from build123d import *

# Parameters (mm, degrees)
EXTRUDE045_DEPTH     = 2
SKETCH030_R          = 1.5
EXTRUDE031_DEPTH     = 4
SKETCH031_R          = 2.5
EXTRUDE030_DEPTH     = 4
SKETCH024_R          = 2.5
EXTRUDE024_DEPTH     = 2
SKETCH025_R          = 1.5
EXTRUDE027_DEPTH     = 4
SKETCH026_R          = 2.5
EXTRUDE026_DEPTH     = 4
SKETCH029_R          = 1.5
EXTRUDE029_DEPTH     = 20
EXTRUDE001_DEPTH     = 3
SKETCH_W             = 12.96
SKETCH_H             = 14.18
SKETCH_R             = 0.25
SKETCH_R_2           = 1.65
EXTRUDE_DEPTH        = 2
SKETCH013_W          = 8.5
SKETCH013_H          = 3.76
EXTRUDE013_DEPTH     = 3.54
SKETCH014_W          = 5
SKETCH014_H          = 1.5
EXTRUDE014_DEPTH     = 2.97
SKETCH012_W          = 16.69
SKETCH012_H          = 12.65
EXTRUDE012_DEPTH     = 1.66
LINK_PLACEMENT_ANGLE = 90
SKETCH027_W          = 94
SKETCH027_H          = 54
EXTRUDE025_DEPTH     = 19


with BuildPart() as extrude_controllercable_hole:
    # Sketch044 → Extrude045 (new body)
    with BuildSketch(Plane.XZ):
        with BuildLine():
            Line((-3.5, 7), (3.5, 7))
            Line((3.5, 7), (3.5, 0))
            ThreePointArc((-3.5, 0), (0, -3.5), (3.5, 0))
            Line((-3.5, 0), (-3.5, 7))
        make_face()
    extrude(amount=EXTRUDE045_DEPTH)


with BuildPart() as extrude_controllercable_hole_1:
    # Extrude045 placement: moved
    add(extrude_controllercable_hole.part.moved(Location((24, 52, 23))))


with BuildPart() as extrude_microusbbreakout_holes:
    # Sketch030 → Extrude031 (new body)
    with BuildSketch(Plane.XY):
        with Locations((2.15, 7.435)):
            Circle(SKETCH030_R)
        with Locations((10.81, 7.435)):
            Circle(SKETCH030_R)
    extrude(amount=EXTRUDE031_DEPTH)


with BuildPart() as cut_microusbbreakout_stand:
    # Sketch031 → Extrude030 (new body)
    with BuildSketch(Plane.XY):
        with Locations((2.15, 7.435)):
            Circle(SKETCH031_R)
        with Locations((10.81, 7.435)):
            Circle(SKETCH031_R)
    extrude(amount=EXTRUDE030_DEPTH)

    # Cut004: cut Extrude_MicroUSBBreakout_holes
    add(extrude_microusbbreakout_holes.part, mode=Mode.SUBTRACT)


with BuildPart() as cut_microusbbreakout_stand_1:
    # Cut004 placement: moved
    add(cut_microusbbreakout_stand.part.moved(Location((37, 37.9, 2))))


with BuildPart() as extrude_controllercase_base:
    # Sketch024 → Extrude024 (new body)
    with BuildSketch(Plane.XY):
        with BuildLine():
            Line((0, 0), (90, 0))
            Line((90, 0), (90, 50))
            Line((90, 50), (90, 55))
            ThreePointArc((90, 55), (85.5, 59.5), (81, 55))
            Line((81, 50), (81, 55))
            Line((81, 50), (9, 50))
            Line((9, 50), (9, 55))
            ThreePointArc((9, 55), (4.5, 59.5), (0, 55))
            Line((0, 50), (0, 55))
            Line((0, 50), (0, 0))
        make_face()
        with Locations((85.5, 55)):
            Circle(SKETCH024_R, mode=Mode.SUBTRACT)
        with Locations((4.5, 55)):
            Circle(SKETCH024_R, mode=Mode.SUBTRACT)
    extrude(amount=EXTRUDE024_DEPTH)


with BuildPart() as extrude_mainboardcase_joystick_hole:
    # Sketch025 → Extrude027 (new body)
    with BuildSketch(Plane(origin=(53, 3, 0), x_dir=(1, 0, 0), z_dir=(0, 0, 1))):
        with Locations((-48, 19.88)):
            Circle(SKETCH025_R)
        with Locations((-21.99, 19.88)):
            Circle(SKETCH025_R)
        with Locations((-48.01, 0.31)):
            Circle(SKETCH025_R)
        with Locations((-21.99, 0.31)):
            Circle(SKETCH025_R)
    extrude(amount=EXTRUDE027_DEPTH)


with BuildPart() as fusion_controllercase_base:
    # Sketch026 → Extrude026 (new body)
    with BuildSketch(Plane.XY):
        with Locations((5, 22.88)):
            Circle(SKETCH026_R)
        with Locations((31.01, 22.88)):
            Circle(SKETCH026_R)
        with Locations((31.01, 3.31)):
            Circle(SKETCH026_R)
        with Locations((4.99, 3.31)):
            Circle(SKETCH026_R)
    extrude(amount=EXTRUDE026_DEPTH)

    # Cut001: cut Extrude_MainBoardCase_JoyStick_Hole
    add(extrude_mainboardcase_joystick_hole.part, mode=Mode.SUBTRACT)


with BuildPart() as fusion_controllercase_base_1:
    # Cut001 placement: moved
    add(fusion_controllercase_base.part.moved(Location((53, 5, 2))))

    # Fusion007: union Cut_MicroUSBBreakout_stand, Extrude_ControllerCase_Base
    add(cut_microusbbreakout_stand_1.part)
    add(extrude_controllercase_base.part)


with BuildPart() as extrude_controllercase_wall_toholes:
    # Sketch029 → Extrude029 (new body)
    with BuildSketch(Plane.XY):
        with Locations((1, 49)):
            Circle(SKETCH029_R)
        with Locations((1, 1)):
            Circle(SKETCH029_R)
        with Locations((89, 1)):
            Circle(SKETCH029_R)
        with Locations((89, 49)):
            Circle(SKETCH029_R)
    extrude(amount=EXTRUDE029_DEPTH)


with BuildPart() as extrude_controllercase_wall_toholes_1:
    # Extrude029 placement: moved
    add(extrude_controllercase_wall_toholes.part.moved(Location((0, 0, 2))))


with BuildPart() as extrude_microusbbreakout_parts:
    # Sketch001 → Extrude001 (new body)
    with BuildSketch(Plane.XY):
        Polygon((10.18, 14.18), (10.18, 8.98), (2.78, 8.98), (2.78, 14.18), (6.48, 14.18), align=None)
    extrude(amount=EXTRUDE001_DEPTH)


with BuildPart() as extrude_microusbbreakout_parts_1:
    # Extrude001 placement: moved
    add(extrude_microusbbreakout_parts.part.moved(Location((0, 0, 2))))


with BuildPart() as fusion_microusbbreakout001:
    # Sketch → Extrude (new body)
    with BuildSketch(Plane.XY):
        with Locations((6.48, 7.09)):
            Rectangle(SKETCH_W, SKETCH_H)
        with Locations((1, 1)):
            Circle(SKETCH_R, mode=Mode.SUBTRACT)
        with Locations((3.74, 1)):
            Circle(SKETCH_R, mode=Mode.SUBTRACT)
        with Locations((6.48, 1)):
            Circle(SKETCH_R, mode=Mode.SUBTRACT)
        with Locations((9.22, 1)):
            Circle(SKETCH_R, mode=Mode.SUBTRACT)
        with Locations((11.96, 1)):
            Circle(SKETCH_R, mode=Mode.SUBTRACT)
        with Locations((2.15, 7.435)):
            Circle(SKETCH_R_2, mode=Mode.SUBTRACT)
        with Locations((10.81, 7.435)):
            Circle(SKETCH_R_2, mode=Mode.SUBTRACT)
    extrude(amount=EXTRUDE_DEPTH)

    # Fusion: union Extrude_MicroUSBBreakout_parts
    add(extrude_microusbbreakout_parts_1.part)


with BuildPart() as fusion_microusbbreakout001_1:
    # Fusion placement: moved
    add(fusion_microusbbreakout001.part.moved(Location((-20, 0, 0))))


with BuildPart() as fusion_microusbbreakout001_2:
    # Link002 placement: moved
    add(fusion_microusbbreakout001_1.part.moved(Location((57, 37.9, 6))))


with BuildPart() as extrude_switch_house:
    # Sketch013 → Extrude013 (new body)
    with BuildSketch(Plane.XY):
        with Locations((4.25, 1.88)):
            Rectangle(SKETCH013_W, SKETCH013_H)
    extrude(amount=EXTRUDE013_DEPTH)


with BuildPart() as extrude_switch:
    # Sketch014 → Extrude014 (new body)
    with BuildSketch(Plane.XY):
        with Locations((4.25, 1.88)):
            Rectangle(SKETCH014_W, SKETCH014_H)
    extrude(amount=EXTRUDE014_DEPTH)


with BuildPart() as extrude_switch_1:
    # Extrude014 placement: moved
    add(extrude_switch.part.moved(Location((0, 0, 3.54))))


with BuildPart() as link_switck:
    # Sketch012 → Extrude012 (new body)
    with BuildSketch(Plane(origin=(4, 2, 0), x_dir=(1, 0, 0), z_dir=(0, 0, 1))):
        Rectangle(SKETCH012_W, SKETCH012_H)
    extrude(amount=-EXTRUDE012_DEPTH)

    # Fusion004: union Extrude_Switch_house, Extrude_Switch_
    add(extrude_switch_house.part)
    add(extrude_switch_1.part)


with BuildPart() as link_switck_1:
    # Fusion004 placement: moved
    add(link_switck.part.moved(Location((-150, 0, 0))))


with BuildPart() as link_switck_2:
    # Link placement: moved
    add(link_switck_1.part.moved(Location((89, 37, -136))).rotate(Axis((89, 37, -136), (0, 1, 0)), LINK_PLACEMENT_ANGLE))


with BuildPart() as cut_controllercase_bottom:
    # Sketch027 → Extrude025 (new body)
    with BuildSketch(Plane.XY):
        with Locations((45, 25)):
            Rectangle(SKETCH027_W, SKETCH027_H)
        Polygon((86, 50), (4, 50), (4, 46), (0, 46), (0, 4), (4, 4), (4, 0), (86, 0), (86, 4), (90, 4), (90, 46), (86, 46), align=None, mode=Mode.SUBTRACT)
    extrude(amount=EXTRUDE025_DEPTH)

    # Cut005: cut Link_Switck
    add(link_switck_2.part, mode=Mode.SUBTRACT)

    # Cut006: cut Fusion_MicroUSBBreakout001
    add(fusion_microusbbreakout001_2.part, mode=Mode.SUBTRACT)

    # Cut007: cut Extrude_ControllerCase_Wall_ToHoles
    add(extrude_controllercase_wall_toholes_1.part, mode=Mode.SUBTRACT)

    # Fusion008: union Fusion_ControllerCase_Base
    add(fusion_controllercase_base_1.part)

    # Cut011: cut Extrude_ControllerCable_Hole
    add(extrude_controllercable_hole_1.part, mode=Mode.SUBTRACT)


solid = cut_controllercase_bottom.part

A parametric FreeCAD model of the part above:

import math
import FreeCAD as App
import Part
import Sketcher

V = App.Vector


def add_polygon(sketch, points):
    """Adds a closed chain of lines whose ends are joined by coincident constraints."""
    first, n = sketch.GeometryCount, len(points)
    for a, b in zip(points, points[1:] + points[:1]):
        sketch.addGeometry(Part.LineSegment(App.Vector(*a, 0), App.Vector(*b, 0)), False)
    for i in range(n):
        sketch.addConstraint(Sketcher.Constraint("Coincident", first + i, 2, first + (i + 1) % n, 1))

doc = App.newDocument("Part")
params = doc.addObject("Spreadsheet::Sheet", "Params")
for row, (alias, value) in enumerate([
    ("sketch1_radius", "3.5 mm"),
    ("pad1_length", "2 mm"),
    ("sketch2_diameter", "3 mm"),
    ("pad2_length", "4 mm"),
    ("sketch3_diameter", "5 mm"),
    ("pad3_length", "4 mm"),
    ("sketch4_diameter", "5 mm"),
    ("sketch4_radius", "4.5 mm"),
    ("sketch4_width", "90 mm"),
    ("sketch4_height", "55 mm"),
    ("sketch4_height2", "5 mm"),
    ("pad4_length", "2 mm"),
    ("sketch5_diameter", "3 mm"),
    ("pad5_length", "4 mm"),
    ("sketch6_diameter", "5 mm"),
    ("pad6_length", "4 mm"),
    ("sketch7_diameter", "3 mm"),
    ("pad7_length", "20 mm"),
    ("sketch8_width", "7.4 mm"),
    ("sketch8_height", "5.2 mm"),
    ("pad8_length", "3 mm"),
    ("sketch9_diameter", "0.5 mm"),
    ("sketch9_diameter2", "3.3 mm"),
    ("sketch9_width", "12.96 mm"),
    ("sketch9_height", "14.18 mm"),
    ("pad9_length", "2 mm"),
    ("sketch10_width", "8.5 mm"),
    ("sketch10_height", "3.76 mm"),
    ("pad10_length", "3.54 mm"),
    ("sketch11_width", "5 mm"),
    ("sketch11_height", "1.5 mm"),
    ("pad11_length", "2.97 mm"),
    ("sketch12_width", "16.69 mm"),
    ("sketch12_height", "12.65 mm"),
    ("pad12_length", "1.66 mm"),
    ("sketch13_width", "94 mm"),
    ("sketch13_width2", "82 mm"),
    ("sketch13_width3", "4 mm"),
    ("sketch13_height", "54 mm"),
    ("sketch13_height2", "42 mm"),
    ("pad13_length", "19 mm"),
], start=1):
    params.set(f"A{row}", alias)
    params.set(f"B{row}", "=" + value)
    params.setAlias(f"B{row}", alias)

body = doc.addObject("PartDesign::Body", "Body")

sketch1 = doc.addObject("Sketcher::SketchObject", "Sketch")
body.addObject(sketch1)
sketch1.AttachmentSupport = (doc.XZ_Plane, [""])
sketch1.MapMode = "FlatFace"
sketch1.addGeometry([
    Part.LineSegment(V(3.5, 7, 0), V(-3.5, 7, 0)),
    Part.LineSegment(V(-3.5, 7, 0), V(-3.5, 0, 0)),
    Part.ArcOfCircle(Part.Circle(V(0, 0, 0), V(0, 0, 1), 3.5), math.radians(180), math.radians(360)),
    Part.LineSegment(V(3.5, 0, 0), V(3.5, 7, 0)),
], False)
sketch1.addConstraint([
    Sketcher.Constraint("Coincident", 0, 2, 1, 1),
    Sketcher.Constraint("Tangent", 1, 2, 2, 1),
    Sketcher.Constraint("Tangent", 2, 2, 3, 1),
    Sketcher.Constraint("Coincident", 3, 2, 0, 1),
    Sketcher.Constraint("Horizontal", 0),
    Sketcher.Constraint("Vertical", 1),
    Sketcher.Constraint("Vertical", 3),
    Sketcher.Constraint("Coincident", 2, 3, -1, 1),
    Sketcher.Constraint("Equal", 0, 1),
    Sketcher.Constraint("Radius", 2, 3.5),
])
sketch1.setExpression("Constraints[9]", "Params.sketch1_radius")
pad1 = doc.addObject("PartDesign::Pad", "Pad")
body.addObject(pad1)
pad1.Profile = sketch1
pad1.setExpression("Length", "Params.pad1_length")
body2 = doc.addObject("PartDesign::Body", "Body001")
doc.recompute()

body.Placement = App.Placement(V(24, 52, 23), App.Rotation(V(0, 0, 1), 0))
boolean = doc.addObject("PartDesign::Boolean", "Boolean")
body2.addObject(boolean)
boolean.Type = "Fuse"
boolean.addObjects([body])
body3 = doc.addObject("PartDesign::Body", "Body002")
body3.AllowCompound = True

sketch2 = doc.addObject("Sketcher::SketchObject", "Sketch001")
body3.addObject(sketch2)
sketch2.AttachmentSupport = (doc.getObject("XY_Plane002"), [""])
sketch2.MapMode = "FlatFace"
sketch2.addGeometry([
    Part.Circle(V(2.1, 7.4, 0), V(0, 0, 1), 1.5),
    Part.Circle(V(10.8, 7.4, 0), V(0, 0, 1), 1.5),
], False)
sketch2.addConstraint([
    Sketcher.Constraint("Equal", 0, 1),
    Sketcher.Constraint("Horizontal", 0, 3, 1, 3),
    Sketcher.Constraint("Diameter", 0, 3.0),
    Sketcher.Constraint("DistanceX", -1, 1, 0, 3, 2.15),
    Sketcher.Constraint("DistanceX", -1, 1, 1, 3, 10.81),
    Sketcher.Constraint("DistanceY", -1, 1, 0, 3, 7.435),
])
sketch2.setExpression("Constraints[2]", "Params.sketch2_diameter")
pad2 = doc.addObject("PartDesign::Pad", "Pad001")
body3.addObject(pad2)
pad2.Profile = sketch2
pad2.setExpression("Length", "Params.pad2_length")
body4 = doc.addObject("PartDesign::Body", "Body003")
body4.AllowCompound = True

sketch3 = doc.addObject("Sketcher::SketchObject", "Sketch002")
body4.addObject(sketch3)
sketch3.AttachmentSupport = (doc.getObject("XY_Plane003"), [""])
sketch3.MapMode = "FlatFace"
sketch3.addGeometry([
    Part.Circle(V(2.1, 7.4, 0), V(0, 0, 1), 2.5),
    Part.Circle(V(10.8, 7.4, 0), V(0, 0, 1), 2.5),
], False)
sketch3.addConstraint([
    Sketcher.Constraint("Equal", 0, 1),
    Sketcher.Constraint("Horizontal", 0, 3, 1, 3),
    Sketcher.Constraint("Diameter", 0, 5.0),
    Sketcher.Constraint("DistanceX", -1, 1, 0, 3, 2.15),
    Sketcher.Constraint("DistanceX", -1, 1, 1, 3, 10.81),
    Sketcher.Constraint("DistanceY", -1, 1, 0, 3, 7.435),
])
sketch3.setExpression("Constraints[2]", "Params.sketch3_diameter")
pad3 = doc.addObject("PartDesign::Pad", "Pad002")
body4.addObject(pad3)
pad3.Profile = sketch3
pad3.setExpression("Length", "Params.pad3_length")
doc.recompute()

boolean2 = doc.addObject("PartDesign::Boolean", "Boolean001")
body4.addObject(boolean2)
boolean2.Type = "Cut"
boolean2.addObjects([body3])
body5 = doc.addObject("PartDesign::Body", "Body004")
body5.AllowCompound = True
doc.recompute()

body4.Placement = App.Placement(V(37, 37.9, 2), App.Rotation(V(0, 0, 1), 0))
boolean3 = doc.addObject("PartDesign::Boolean", "Boolean002")
body5.addObject(boolean3)
boolean3.Type = "Fuse"
boolean3.addObjects([body4])
body6 = doc.addObject("PartDesign::Body", "Body005")

sketch4 = doc.addObject("Sketcher::SketchObject", "Sketch003")
body6.addObject(sketch4)
sketch4.AttachmentSupport = (doc.getObject("XY_Plane005"), [""])
sketch4.MapMode = "FlatFace"
sketch4.addGeometry([
    Part.LineSegment(V(0, 0, 0), V(90, 0, 0)),
    Part.LineSegment(V(90, 0, 0), V(90, 55, 0)),
    Part.ArcOfCircle(Part.Circle(V(85.5, 55, 0), V(0, 0, 1), 4.5), math.radians(0), math.radians(180)),
    Part.LineSegment(V(81, 55, 0), V(81, 50, 0)),
    Part.LineSegment(V(81, 50, 0), V(9, 50, 0)),
    Part.LineSegment(V(9, 50, 0), V(9, 55, 0)),
    Part.ArcOfCircle(Part.Circle(V(4.5, 55, 0), V(0, 0, 1), 4.5), math.radians(0), math.radians(180)),
    Part.LineSegment(V(0, 55, 0), V(0, 0, 0)),
    Part.Circle(V(4.5, 55, 0), V(0, 0, 1), 2.5),
    Part.Circle(V(85.5, 55, 0), V(0, 0, 1), 2.5),
], False)
sketch4.addConstraint([
    Sketcher.Constraint("Coincident", 0, 2, 1, 1),
    Sketcher.Constraint("Tangent", 1, 2, 2, 1),
    Sketcher.Constraint("Tangent", 2, 2, 3, 1),
    Sketcher.Constraint("Coincident", 3, 2, 4, 1),
    Sketcher.Constraint("Coincident", 4, 2, 5, 1),
    Sketcher.Constraint("Tangent", 5, 2, 6, 1),
    Sketcher.Constraint("Tangent", 6, 2, 7, 1),
    Sketcher.Constraint("Coincident", 7, 2, 0, 1),
    Sketcher.Constraint("Horizontal", 0),
    Sketcher.Constraint("Vertical", 1),
    Sketcher.Constraint("Vertical", 3),
    Sketcher.Constraint("Horizontal", 4),
    Sketcher.Constraint("Vertical", 5),
    Sketcher.Constraint("Vertical", 7),
    Sketcher.Constraint("Coincident", 7, 2, -1, 1),
    Sketcher.Constraint("Coincident", 8, 3, 6, 3),
    Sketcher.Constraint("Coincident", 9, 3, 2, 3),
    Sketcher.Constraint("Equal", 2, 6),
    Sketcher.Constraint("Equal", 8, 9),
    Sketcher.Constraint("Horizontal", 2, 3, 6, 3),
    Sketcher.Constraint("Diameter", 8, 5.0),
    Sketcher.Constraint("Radius", 2, 4.5),
    Sketcher.Constraint("DistanceX", 0, 1, 0, 2, 90.0),
    Sketcher.Constraint("DistanceY", 1, 1, 1, 2, 55.0),
    Sketcher.Constraint("DistanceY", 3, 2, 3, 1, 5.0),
])
sketch4.setExpression("Constraints[20]", "Params.sketch4_diameter")
sketch4.setExpression("Constraints[21]", "Params.sketch4_radius")
sketch4.setExpression("Constraints[22]", "Params.sketch4_width")
sketch4.setExpression("Constraints[23]", "Params.sketch4_height")
sketch4.setExpression("Constraints[24]", "Params.sketch4_height2")
pad4 = doc.addObject("PartDesign::Pad", "Pad003")
body6.addObject(pad4)
pad4.Profile = sketch4
pad4.setExpression("Length", "Params.pad4_length")
body7 = doc.addObject("PartDesign::Body", "Body006")
body7.AllowCompound = True

sketch5 = doc.addObject("Sketcher::SketchObject", "Sketch004")
body7.addObject(sketch5)
sketch5.AttachmentSupport = (doc.getObject("XY_Plane006"), [""])
sketch5.MapMode = "FlatFace"
sketch5.addGeometry([
    Part.Circle(V(5, 22.9, 0), V(0, 0, 1), 1.5),
    Part.Circle(V(31, 22.9, 0), V(0, 0, 1), 1.5),
    Part.Circle(V(5, 3.3, 0), V(0, 0, 1), 1.5),
    Part.Circle(V(31, 3.3, 0), V(0, 0, 1), 1.5),
], False)
sketch5.addConstraint([
    Sketcher.Constraint("Equal", 0, 1),
    Sketcher.Constraint("Equal", 1, 2),
    Sketcher.Constraint("Equal", 2, 3),
    Sketcher.Constraint("Horizontal", 0, 3, 1, 3),
    Sketcher.Constraint("Horizontal", 2, 3, 3, 3),
    Sketcher.Constraint("Vertical", 1, 3, 3, 3),
    Sketcher.Constraint("Diameter", 0, 3.0),
    Sketcher.Constraint("DistanceX", -1, 1, 0, 3, 5.0),
    Sketcher.Constraint("DistanceY", -1, 1, 0, 3, 22.88),
    Sketcher.Constraint("DistanceX", -1, 1, 1, 3, 31.01),
    Sketcher.Constraint("DistanceX", -1, 1, 2, 3, 4.99),
    Sketcher.Constraint("DistanceY", -1, 1, 2, 3, 3.31),
])
sketch5.setExpression("Constraints[6]", "Params.sketch5_diameter")
pad5 = doc.addObject("PartDesign::Pad", "Pad004")
body7.addObject(pad5)
pad5.Profile = sketch5
pad5.setExpression("Length", "Params.pad5_length")
body8 = doc.addObject("PartDesign::Body", "Body007")
body8.AllowCompound = True

sketch6 = doc.addObject("Sketcher::SketchObject", "Sketch005")
body8.addObject(sketch6)
sketch6.AttachmentSupport = (doc.getObject("XY_Plane007"), [""])
sketch6.MapMode = "FlatFace"
sketch6.addGeometry([
    Part.Circle(V(5, 22.9, 0), V(0, 0, 1), 2.5),
    Part.Circle(V(31, 22.9, 0), V(0, 0, 1), 2.5),
    Part.Circle(V(31, 3.3, 0), V(0, 0, 1), 2.5),
    Part.Circle(V(5, 3.3, 0), V(0, 0, 1), 2.5),
], False)
sketch6.addConstraint([
    Sketcher.Constraint("Equal", 0, 1),
    Sketcher.Constraint("Equal", 1, 2),
    Sketcher.Constraint("Equal", 2, 3),
    Sketcher.Constraint("Horizontal", 0, 3, 1, 3),
    Sketcher.Constraint("Horizontal", 2, 3, 3, 3),
    Sketcher.Constraint("Vertical", 1, 3, 2, 3),
    Sketcher.Constraint("Diameter", 0, 5.0),
    Sketcher.Constraint("DistanceX", -1, 1, 0, 3, 5.0),
    Sketcher.Constraint("DistanceY", -1, 1, 0, 3, 22.88),
    Sketcher.Constraint("DistanceX", -1, 1, 1, 3, 31.01),
    Sketcher.Constraint("DistanceY", -1, 1, 2, 3, 3.31),
    Sketcher.Constraint("DistanceX", -1, 1, 3, 3, 4.99),
])
sketch6.setExpression("Constraints[6]", "Params.sketch6_diameter")
pad6 = doc.addObject("PartDesign::Pad", "Pad005")
body8.addObject(pad6)
pad6.Profile = sketch6
pad6.setExpression("Length", "Params.pad6_length")
doc.recompute()

boolean4 = doc.addObject("PartDesign::Boolean", "Boolean003")
body8.addObject(boolean4)
boolean4.Type = "Cut"
boolean4.addObjects([body7])
body9 = doc.addObject("PartDesign::Body", "Body008")
body9.AllowCompound = True
doc.recompute()

body8.Placement = App.Placement(V(53, 5, 2), App.Rotation(V(0, 0, 1), 0))
boolean5 = doc.addObject("PartDesign::Boolean", "Boolean004")
body9.addObject(boolean5)
boolean5.Type = "Fuse"
boolean5.addObjects([body8])
doc.recompute()

boolean6 = doc.addObject("PartDesign::Boolean", "Boolean005")
body9.addObject(boolean6)
boolean6.Type = "Fuse"
boolean6.addObjects([body5])
doc.recompute()

boolean7 = doc.addObject("PartDesign::Boolean", "Boolean006")
body9.addObject(boolean7)
boolean7.Type = "Fuse"
boolean7.addObjects([body6])
body10 = doc.addObject("PartDesign::Body", "Body009")
body10.AllowCompound = True

sketch7 = doc.addObject("Sketcher::SketchObject", "Sketch006")
body10.addObject(sketch7)
sketch7.AttachmentSupport = (doc.getObject("XY_Plane009"), [""])
sketch7.MapMode = "FlatFace"
sketch7.addGeometry([
    Part.Circle(V(1, 49, 0), V(0, 0, 1), 1.5),
    Part.Circle(V(1, 1, 0), V(0, 0, 1), 1.5),
    Part.Circle(V(89, 1, 0), V(0, 0, 1), 1.5),
    Part.Circle(V(89, 49, 0), V(0, 0, 1), 1.5),
], False)
sketch7.addConstraint([
    Sketcher.Constraint("Equal", 0, 1),
    Sketcher.Constraint("Equal", 1, 2),
    Sketcher.Constraint("Equal", 2, 3),
    Sketcher.Constraint("Horizontal", 1, 3, 2, 3),
    Sketcher.Constraint("Horizontal", 0, 3, 3, 3),
    Sketcher.Constraint("Vertical", 0, 3, 1, 3),
    Sketcher.Constraint("Vertical", 2, 3, 3, 3),
    Sketcher.Constraint("Diameter", 0, 3.0),
    Sketcher.Constraint("DistanceX", -1, 1, 0, 3, 1.0),
    Sketcher.Constraint("DistanceY", -1, 1, 0, 3, 49.0),
    Sketcher.Constraint("DistanceY", -1, 1, 1, 3, 1.0),
    Sketcher.Constraint("DistanceX", -1, 1, 2, 3, 89.0),
])
sketch7.setExpression("Constraints[7]", "Params.sketch7_diameter")
pad7 = doc.addObject("PartDesign::Pad", "Pad006")
body10.addObject(pad7)
pad7.Profile = sketch7
pad7.setExpression("Length", "Params.pad7_length")
body11 = doc.addObject("PartDesign::Body", "Body010")
body11.AllowCompound = True
doc.recompute()

body10.Placement = App.Placement(V(0, 0, 2), App.Rotation(V(0, 0, 1), 0))
boolean8 = doc.addObject("PartDesign::Boolean", "Boolean007")
body11.addObject(boolean8)
boolean8.Type = "Fuse"
boolean8.addObjects([body10])
body12 = doc.addObject("PartDesign::Body", "Body011")

sketch8 = doc.addObject("Sketcher::SketchObject", "Sketch007")
body12.addObject(sketch8)
sketch8.AttachmentSupport = (doc.getObject("XY_Plane011"), [""])
sketch8.MapMode = "FlatFace"
add_polygon(sketch8, [(10, 9), (10, 14), (3, 14), (3, 9)])
sketch8.addConstraint([
    Sketcher.Constraint("Vertical", 0),
    Sketcher.Constraint("Horizontal", 1),
    Sketcher.Constraint("Vertical", 2),
    Sketcher.Constraint("Horizontal", 3),
    Sketcher.Constraint("DistanceX", 1, 2, 1, 1, 7.4),
    Sketcher.Constraint("DistanceY", 0, 1, 0, 2, 5.2),
    Sketcher.Constraint("DistanceX", -1, 1, 0, 2, 10.18),
    Sketcher.Constraint("DistanceY", -1, 1, 0, 2, 14.18),
])
sketch8.setExpression("Constraints[8]", "Params.sketch8_width")
sketch8.setExpression("Constraints[9]", "Params.sketch8_height")
pad8 = doc.addObject("PartDesign::Pad", "Pad007")
body12.addObject(pad8)
pad8.Profile = sketch8
pad8.setExpression("Length", "Params.pad8_length")
body13 = doc.addObject("PartDesign::Body", "Body012")
doc.recompute()

body12.Placement = App.Placement(V(0, 0, 2), App.Rotation(V(0, 0, 1), 0))
boolean9 = doc.addObject("PartDesign::Boolean", "Boolean008")
body13.addObject(boolean9)
boolean9.Type = "Fuse"
boolean9.addObjects([body12])
body14 = doc.addObject("PartDesign::Body", "Body013")

sketch9 = doc.addObject("Sketcher::SketchObject", "Sketch008")
body14.addObject(sketch9)
sketch9.AttachmentSupport = (doc.getObject("XY_Plane013"), [""])
sketch9.MapMode = "FlatFace"
add_polygon(sketch9, [(0, 14.18), (0, 0), (12.96, 0), (12.96, 14.18)])
sketch9.addGeometry(Part.Circle(V(1, 1, 0), V(0, 0, 1), 0.25), False)
sketch9.addGeometry(Part.Circle(V(3.74, 1, 0), V(0, 0, 1), 0.25), False)
sketch9.addGeometry(Part.Circle(V(6.48, 1, 0), V(0, 0, 1), 0.25), False)
sketch9.addGeometry(Part.Circle(V(9.22, 1, 0), V(0, 0, 1), 0.25), False)
sketch9.addGeometry(Part.Circle(V(11.96, 1, 0), V(0, 0, 1), 0.25), False)
sketch9.addGeometry(Part.Circle(V(2.15, 7.43, 0), V(0, 0, 1), 1.65), False)
sketch9.addGeometry(Part.Circle(V(10.81, 7.43, 0), V(0, 0, 1), 1.65), False)
sketch9.addConstraint([
    Sketcher.Constraint("Vertical", 0),
    Sketcher.Constraint("Horizontal", 1),
    Sketcher.Constraint("Vertical", 2),
    Sketcher.Constraint("Horizontal", 3),
    Sketcher.Constraint("Coincident", 0, 2, -1, 1),
    Sketcher.Constraint("Equal", 4, 5),
    Sketcher.Constraint("Equal", 5, 6),
    Sketcher.Constraint("Equal", 6, 7),
    Sketcher.Constraint("Equal", 7, 8),
    Sketcher.Constraint("Equal", 9, 10),
    Sketcher.Constraint("Horizontal", 4, 3, 5, 3),
    Sketcher.Constraint("Horizontal", 5, 3, 6, 3),
    Sketcher.Constraint("Horizontal", 6, 3, 7, 3),
    Sketcher.Constraint("Horizontal", 7, 3, 8, 3),
    Sketcher.Constraint("Horizontal", 9, 3, 10, 3),
    Sketcher.Constraint("Diameter", 4, 0.5),
    Sketcher.Constraint("Diameter", 9, 3.3),
    Sketcher.Constraint("DistanceX", -1, 1, 4, 3, 1.0),
    Sketcher.Constraint("DistanceY", -1, 1, 4, 3, 1.0),
    Sketcher.Constraint("DistanceX", 8, 3, 1, 2, 1.0),
    Sketcher.Constraint("DistanceX", 1, 1, 1, 2, 12.96),
    Sketcher.Constraint("DistanceY", 0, 2, 0, 1, 14.18),
    Sketcher.Constraint("DistanceX", -1, 1, 5, 3, 3.74),
    Sketcher.Constraint("DistanceX", -1, 1, 6, 3, 6.48),
    Sketcher.Constraint("DistanceX", -1, 1, 7, 3, 9.22),
    Sketcher.Constraint("DistanceX", -1, 1, 9, 3, 2.15),
    Sketcher.Constraint("DistanceX", -1, 1, 10, 3, 10.81),
    Sketcher.Constraint("DistanceY", -1, 1, 9, 3, 7.435),
])
sketch9.setExpression("Constraints[19]", "Params.sketch9_diameter")
sketch9.setExpression("Constraints[20]", "Params.sketch9_diameter2")
sketch9.setExpression("Constraints[24]", "Params.sketch9_width")
sketch9.setExpression("Constraints[25]", "Params.sketch9_height")
pad9 = doc.addObject("PartDesign::Pad", "Pad008")
body14.addObject(pad9)
pad9.Profile = sketch9
pad9.setExpression("Length", "Params.pad9_length")
doc.recompute()

boolean10 = doc.addObject("PartDesign::Boolean", "Boolean009")
body14.addObject(boolean10)
boolean10.Type = "Fuse"
boolean10.addObjects([body13])
body15 = doc.addObject("PartDesign::Body", "Body014")
doc.recompute()

body14.Placement = App.Placement(V(-20, 0, 0), App.Rotation(V(0, 0, 1), 0))
boolean11 = doc.addObject("PartDesign::Boolean", "Boolean010")
body15.addObject(boolean11)
boolean11.Type = "Fuse"
boolean11.addObjects([body14])
body16 = doc.addObject("PartDesign::Body", "Body015")
doc.recompute()

body15.Placement = App.Placement(V(57, 37.9, 6), App.Rotation(V(0, 0, 1), 0))
boolean12 = doc.addObject("PartDesign::Boolean", "Boolean011")
body16.addObject(boolean12)
boolean12.Type = "Fuse"
boolean12.addObjects([body15])
body17 = doc.addObject("PartDesign::Body", "Body016")

sketch10 = doc.addObject("Sketcher::SketchObject", "Sketch009")
body17.addObject(sketch10)
sketch10.AttachmentSupport = (doc.getObject("XY_Plane016"), [""])
sketch10.MapMode = "FlatFace"
add_polygon(sketch10, [(0, 3.8), (0, 0), (8.5, 0), (8.5, 3.8)])
sketch10.addConstraint([
    Sketcher.Constraint("Vertical", 0),
    Sketcher.Constraint("Horizontal", 1),
    Sketcher.Constraint("Vertical", 2),
    Sketcher.Constraint("Horizontal", 3),
    Sketcher.Constraint("Coincident", 0, 2, -1, 1),
    Sketcher.Constraint("DistanceX", 1, 1, 1, 2, 8.5),
    Sketcher.Constraint("DistanceY", 0, 2, 0, 1, 3.76),
])
sketch10.setExpression("Constraints[9]", "Params.sketch10_width")
sketch10.setExpression("Constraints[10]", "Params.sketch10_height")
pad10 = doc.addObject("PartDesign::Pad", "Pad009")
body17.addObject(pad10)
pad10.Profile = sketch10
pad10.setExpression("Length", "Params.pad10_length")
body18 = doc.addObject("PartDesign::Body", "Body017")

sketch11 = doc.addObject("Sketcher::SketchObject", "Sketch010")
body18.addObject(sketch11)
sketch11.AttachmentSupport = (doc.getObject("XY_Plane017"), [""])
sketch11.MapMode = "FlatFace"
add_polygon(sketch11, [(1.8, 2.6), (1.8, 1.1), (6.8, 1.1), (6.8, 2.6)])
sketch11.addConstraint([
    Sketcher.Constraint("Vertical", 0),
    Sketcher.Constraint("Horizontal", 1),
    Sketcher.Constraint("Vertical", 2),
    Sketcher.Constraint("Horizontal", 3),
    Sketcher.Constraint("DistanceX", 1, 1, 1, 2, 5.0),
    Sketcher.Constraint("DistanceY", 0, 2, 0, 1, 1.5),
    Sketcher.Constraint("DistanceX", -1, 1, 0, 2, 1.75),
    Sketcher.Constraint("DistanceY", -1, 1, 0, 2, 1.13),
])
sketch11.setExpression("Constraints[8]", "Params.sketch11_width")
sketch11.setExpression("Constraints[9]", "Params.sketch11_height")
pad11 = doc.addObject("PartDesign::Pad", "Pad010")
body18.addObject(pad11)
pad11.Profile = sketch11
pad11.setExpression("Length", "Params.pad11_length")
body19 = doc.addObject("PartDesign::Body", "Body018")
doc.recompute()

body18.Placement = App.Placement(V(0, 0, 3.54), App.Rotation(V(0, 0, 1), 0))
boolean13 = doc.addObject("PartDesign::Boolean", "Boolean012")
body19.addObject(boolean13)
boolean13.Type = "Fuse"
boolean13.addObjects([body18])
body20 = doc.addObject("PartDesign::Body", "Body019")

sketch12 = doc.addObject("Sketcher::SketchObject", "Sketch011")
body20.addObject(sketch12)
sketch12.AttachmentSupport = (doc.getObject("XY_Plane019"), [""])
sketch12.MapMode = "FlatFace"
add_polygon(sketch12, [(-4, 8), (-4, -4), (12, -4), (12, 8)])
sketch12.addConstraint([
    Sketcher.Constraint("Vertical", 0),
    Sketcher.Constraint("Horizontal", 1),
    Sketcher.Constraint("Vertical", 2),
    Sketcher.Constraint("Horizontal", 3),
    Sketcher.Constraint("DistanceX", 1, 1, 1, 2, 16.69),
    Sketcher.Constraint("DistanceY", 0, 2, 0, 1, 12.65),
    Sketcher.Constraint("DistanceX", 0, 2, -1, 1, 4.345),
    Sketcher.Constraint("DistanceY", 0, 2, -1, 1, 4.325),
])
sketch12.setExpression("Constraints[8]", "Params.sketch12_width")
sketch12.setExpression("Constraints[9]", "Params.sketch12_height")
pad12 = doc.addObject("PartDesign::Pad", "Pad011")
body20.addObject(pad12)
pad12.Profile = sketch12
pad12.setExpression("Length", "Params.pad12_length")
pad12.Reversed = True
doc.recompute()

boolean14 = doc.addObject("PartDesign::Boolean", "Boolean013")
body20.addObject(boolean14)
boolean14.Type = "Fuse"
boolean14.addObjects([body17])
doc.recompute()

boolean15 = doc.addObject("PartDesign::Boolean", "Boolean014")
body20.addObject(boolean15)
boolean15.Type = "Fuse"
boolean15.addObjects([body19])
body21 = doc.addObject("PartDesign::Body", "Body020")
doc.recompute()

body20.Placement = App.Placement(V(-150, 0, 0), App.Rotation(V(0, 0, 1), 0))
boolean16 = doc.addObject("PartDesign::Boolean", "Boolean015")
body21.addObject(boolean16)
boolean16.Type = "Fuse"
boolean16.addObjects([body20])
body22 = doc.addObject("PartDesign::Body", "Body021")
doc.recompute()

body21.Placement = App.Placement(V(89, 37, -136), App.Rotation(V(0, 1, 0), 90))
boolean17 = doc.addObject("PartDesign::Boolean", "Boolean016")
body22.addObject(boolean17)
boolean17.Type = "Fuse"
boolean17.addObjects([body21])
body23 = doc.addObject("PartDesign::Body", "Body022")

sketch13 = doc.addObject("Sketcher::SketchObject", "Sketch012")
body23.addObject(sketch13)
sketch13.AttachmentSupport = (doc.getObject("XY_Plane022"), [""])
sketch13.MapMode = "FlatFace"
add_polygon(sketch13, [(-2, 52), (-2, -2), (92, -2), (92, 52)])
add_polygon(sketch13, [(4, 50), (86, 50), (86, 46), (90, 46), (90, 4), (86, 4), (86, 0), (4, 0), (4, 4), (0, 4), (0, 46), (4, 46)])
sketch13.addConstraint([
    Sketcher.Constraint("Vertical", 0),
    Sketcher.Constraint("Horizontal", 1),
    Sketcher.Constraint("Vertical", 2),
    Sketcher.Constraint("Horizontal", 3),
    Sketcher.Constraint("Horizontal", 4),
    Sketcher.Constraint("Vertical", 5),
    Sketcher.Constraint("Horizontal", 6),
    Sketcher.Constraint("Vertical", 7),
    Sketcher.Constraint("Horizontal", 8),
    Sketcher.Constraint("Vertical", 9),
    Sketcher.Constraint("Horizontal", 10),
    Sketcher.Constraint("Vertical", 11),
    Sketcher.Constraint("Horizontal", 12),
    Sketcher.Constraint("Vertical", 13),
    Sketcher.Constraint("Horizontal", 14),
    Sketcher.Constraint("Vertical", 15),
    Sketcher.Constraint("PointOnObject", 9, 2, -1),
    Sketcher.Constraint("PointOnObject", 12, 2, -2),
    Sketcher.Constraint("Horizontal", 8, 2, 11, 2),
    Sketcher.Constraint("Horizontal", 6, 2, 13, 2),
    Sketcher.Constraint("Vertical", 5, 2, 8, 2),
    Sketcher.Constraint("Vertical", 11, 2, 14, 2),
    Sketcher.Constraint("Equal", 8, 12),
    Sketcher.Constraint("Equal", 14, 5),
    Sketcher.Constraint("Equal", 5, 9),
    Sketcher.Constraint("DistanceX", 1, 1, 1, 2, 94.0),
    Sketcher.Constraint("DistanceX", 4, 1, 4, 2, 82.0),
    Sketcher.Constraint("DistanceX", 6, 1, 6, 2, 4.0),
    Sketcher.Constraint("DistanceY", 0, 2, 0, 1, 54.0),
    Sketcher.Constraint("DistanceY", 7, 2, 7, 1, 42.0),
    Sketcher.Constraint("DistanceX", 0, 2, -1, 1, 2.0),
    Sketcher.Constraint("DistanceY", 0, 2, -1, 1, 2.0),
])
sketch13.setExpression("Constraints[41]", "Params.sketch13_width")
sketch13.setExpression("Constraints[42]", "Params.sketch13_width2")
sketch13.setExpression("Constraints[43]", "Params.sketch13_width3")
sketch13.setExpression("Constraints[44]", "Params.sketch13_height")
sketch13.setExpression("Constraints[45]", "Params.sketch13_height2")
pad13 = doc.addObject("PartDesign::Pad", "Pad012")
body23.addObject(pad13)
pad13.Profile = sketch13
pad13.setExpression("Length", "Params.pad13_length")
doc.recompute()

boolean18 = doc.addObject("PartDesign::Boolean", "Boolean017")
body23.addObject(boolean18)
boolean18.Type = "Cut"
boolean18.addObjects([body22])
doc.recompute()

boolean19 = doc.addObject("PartDesign::Boolean", "Boolean018")
body23.addObject(boolean19)
boolean19.Type = "Cut"
boolean19.addObjects([body16])
doc.recompute()

boolean20 = doc.addObject("PartDesign::Boolean", "Boolean019")
body23.addObject(boolean20)
boolean20.Type = "Cut"
boolean20.addObjects([body11])
doc.recompute()

boolean21 = doc.addObject("PartDesign::Boolean", "Boolean020")
body23.addObject(boolean21)
boolean21.Type = "Fuse"
boolean21.addObjects([body9])
doc.recompute()

boolean22 = doc.addObject("PartDesign::Boolean", "Boolean021")
body23.addObject(boolean22)
boolean22.Type = "Cut"
boolean22.addObjects([body2])

doc.recompute()
